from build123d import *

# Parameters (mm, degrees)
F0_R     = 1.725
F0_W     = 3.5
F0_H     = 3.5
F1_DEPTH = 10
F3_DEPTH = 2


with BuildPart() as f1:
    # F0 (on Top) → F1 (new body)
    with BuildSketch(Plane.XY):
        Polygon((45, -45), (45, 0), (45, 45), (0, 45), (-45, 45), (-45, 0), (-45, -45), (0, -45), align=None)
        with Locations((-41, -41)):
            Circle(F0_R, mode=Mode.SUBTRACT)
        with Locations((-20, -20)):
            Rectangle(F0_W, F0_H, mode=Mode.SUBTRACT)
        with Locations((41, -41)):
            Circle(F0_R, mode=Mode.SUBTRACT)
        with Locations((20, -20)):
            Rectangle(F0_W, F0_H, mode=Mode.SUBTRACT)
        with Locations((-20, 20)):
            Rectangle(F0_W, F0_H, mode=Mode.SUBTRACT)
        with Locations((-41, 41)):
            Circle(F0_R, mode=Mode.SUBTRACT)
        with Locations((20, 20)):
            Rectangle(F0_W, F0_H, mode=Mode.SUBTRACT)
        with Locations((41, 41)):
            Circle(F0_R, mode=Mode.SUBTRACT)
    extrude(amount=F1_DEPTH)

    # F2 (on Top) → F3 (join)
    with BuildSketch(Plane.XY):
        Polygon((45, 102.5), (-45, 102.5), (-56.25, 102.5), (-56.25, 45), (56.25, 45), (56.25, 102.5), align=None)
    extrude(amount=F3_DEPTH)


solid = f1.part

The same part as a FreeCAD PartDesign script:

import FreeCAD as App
import Part
import Sketcher
from FreeCAD import Vector


def add_polygon(sketch, points):
    """Adds a closed chain of lines whose ends are joined by coincident constraints."""
    first, n = sketch.GeometryCount, len(points)
    for a, b in zip(points, points[1:] + points[:1]):
        sketch.addGeometry(Part.LineSegment(App.Vector(*a, 0), App.Vector(*b, 0)), False)
    for i in range(n):
        sketch.addConstraint(Sketcher.Constraint("Coincident", first + i, 2, first + (i + 1) % n, 1))

doc = App.newDocument("Part")
body = doc.addObject("PartDesign::Body", "Body")

# Sketch on XY plane
sketch1 = body.newObject("Sketcher::SketchObject", "Sketch")
sketch1.AttachmentSupport = (doc.getObject("XY_Plane"), [""])
sketch1.MapMode = "FlatFace"
add_polygon(sketch1, [(45, -45), (45, 45), (-45, 45), (-45, -45)])  # lines 0-3
sketch1.addGeometry(Part.Circle(Vector(-41, -41, 0), Vector(0, 0, 1), 1.7), False)  # 4
add_polygon(sketch1, [(-18.2, -21.8), (-21.8, -21.8), (-21.8, -18.2), (-18.2, -18.2)])  # lines 5-8
sketch1.addGeometry(Part.Circle(Vector(41, -41, 0), Vector(0, 0, 1), 1.7), False)  # 9
add_polygon(sketch1, [(21.8, -21.8), (18.2, -21.8), (18.2, -18.2), (21.8, -18.2)])  # lines 10-13
add_polygon(sketch1, [(-18.2, 18.2), (-21.8, 18.2), (-21.8, 21.8), (-18.2, 21.8)])  # lines 14-17
sketch1.addGeometry(Part.Circle(Vector(-41, 41, 0), Vector(0, 0, 1), 1.7), False)  # 18
add_polygon(sketch1, [(21.8, 18.2), (18.2, 18.2), (18.2, 21.8), (21.8, 21.8)])  # lines 19-22
sketch1.addGeometry(Part.Circle(Vector(41, 41, 0), Vector(0, 0, 1), 1.7), False)  # 23
sketch1.addConstraint([
    Sketcher.Constraint("Vertical", 0),
    Sketcher.Constraint("Horizontal", 1),
    Sketcher.Constraint("Vertical", 2),
    Sketcher.Constraint("Horizontal", 3),
    Sketcher.Constraint("Horizontal", 5),
    Sketcher.Constraint("Vertical", 6),
    Sketcher.Constraint("Horizontal", 7),
    Sketcher.Constraint("Vertical", 8),
    Sketcher.Constraint("Horizontal", 10),
    Sketcher.Constraint("Vertical", 11),
    Sketcher.Constraint("Horizontal", 12),
    Sketcher.Constraint("Vertical", 13),
    Sketcher.Constraint("Horizontal", 14),
    Sketcher.Constraint("Vertical", 15),
    Sketcher.Constraint("Horizontal", 16),
    Sketcher.Constraint("Vertical", 17),
    Sketcher.Constraint("Horizontal", 19),
    Sketcher.Constraint("Vertical", 20),
    Sketcher.Constraint("Horizontal", 21),
    Sketcher.Constraint("Vertical", 22),
    Sketcher.Constraint("Equal", 4, 9),
    Sketcher.Constraint("Equal", 9, 18),
    Sketcher.Constraint("Equal", 18, 23),
    Sketcher.Constraint("Symmetric", 9, 3, 18, 3, -1, 1),
    Sketcher.Constraint("Symmetric", 4, 3, 23, 3, -1, 1),
    Sketcher.Constraint("Symmetric", 0, 2, 2, 2, -1, 1),
    Sketcher.Constraint("Symmetric", 12, 2, 14, 2, -1, 1),
    Sketcher.Constraint("Symmetric", 10, 2, 16, 2, -1, 1),
    Sketcher.Constraint("Symmetric", 7, 2, 19, 2, -1, 1),
    Sketcher.Constraint("Symmetric", 5, 2, 21, 2, -1, 1),
    Sketcher.Constraint("Symmetric", 4, 3, 9, 3, -2),
    Sketcher.Constraint("Symmetric", 8, 2, 10, 2, -2),
    Sketcher.Constraint("Symmetric", 6, 2, 12, 2, -2),
    Sketcher.Constraint("Equal", 3, 0),
    Sketcher.Constraint("Equal", 21, 6),
    Sketcher.Constraint("Diameter", 4, 3.45),
    Sketcher.Constraint("DistanceX", 1, 2, 1, 1, 90.0),
    Sketcher.Constraint("DistanceX", 5, 2, 5, 1, 3.5),
    Sketcher.Constraint("DistanceX", 4, 3, -1, 1, 41.0),
    Sketcher.Constraint("DistanceY", 4, 3, -1, 1, 41.0),
    Sketcher.Constraint("DistanceX", 5, 2, 10, 2, 40.0),
    Sketcher.Constraint("DistanceY", 5, 2, 14, 2, 40.0),
])
pad1 = body.newObject("PartDesign::Pad", "Pad")
pad1.Profile = sketch1
pad1.Length = 10

# Sketch on XY plane
sketch2 = body.newObject("Sketcher::SketchObject", "Sketch001")
sketch2.AttachmentSupport = (doc.getObject("XY_Plane"), [""])
sketch2.MapMode = "FlatFace"
add_polygon(sketch2, [(-56, 102), (-56, 45), (56, 45), (56, 102)])  # lines 0-3
sketch2.addConstraint([
    Sketcher.Constraint("Vertical", 0),
    Sketcher.Constraint("Horizontal", 1),
    Sketcher.Constraint("Vertical", 2),
    Sketcher.Constraint("Horizontal", 3),
    Sketcher.Constraint("DistanceX", 1, 1, 1, 2, 112.5),
    Sketcher.Constraint("DistanceY", 0, 2, 0, 1, 57.5),
    Sketcher.Constraint("DistanceY", -1, 1, 0, 2, 45.0),
    Sketcher.Constraint("DistanceX", 0, 2, -1, 1, 56.25),
])
pad2 = body.newObject("PartDesign::Pad", "Pad001")
pad2.Profile = sketch2
pad2.Length = 2

doc.recompute()
